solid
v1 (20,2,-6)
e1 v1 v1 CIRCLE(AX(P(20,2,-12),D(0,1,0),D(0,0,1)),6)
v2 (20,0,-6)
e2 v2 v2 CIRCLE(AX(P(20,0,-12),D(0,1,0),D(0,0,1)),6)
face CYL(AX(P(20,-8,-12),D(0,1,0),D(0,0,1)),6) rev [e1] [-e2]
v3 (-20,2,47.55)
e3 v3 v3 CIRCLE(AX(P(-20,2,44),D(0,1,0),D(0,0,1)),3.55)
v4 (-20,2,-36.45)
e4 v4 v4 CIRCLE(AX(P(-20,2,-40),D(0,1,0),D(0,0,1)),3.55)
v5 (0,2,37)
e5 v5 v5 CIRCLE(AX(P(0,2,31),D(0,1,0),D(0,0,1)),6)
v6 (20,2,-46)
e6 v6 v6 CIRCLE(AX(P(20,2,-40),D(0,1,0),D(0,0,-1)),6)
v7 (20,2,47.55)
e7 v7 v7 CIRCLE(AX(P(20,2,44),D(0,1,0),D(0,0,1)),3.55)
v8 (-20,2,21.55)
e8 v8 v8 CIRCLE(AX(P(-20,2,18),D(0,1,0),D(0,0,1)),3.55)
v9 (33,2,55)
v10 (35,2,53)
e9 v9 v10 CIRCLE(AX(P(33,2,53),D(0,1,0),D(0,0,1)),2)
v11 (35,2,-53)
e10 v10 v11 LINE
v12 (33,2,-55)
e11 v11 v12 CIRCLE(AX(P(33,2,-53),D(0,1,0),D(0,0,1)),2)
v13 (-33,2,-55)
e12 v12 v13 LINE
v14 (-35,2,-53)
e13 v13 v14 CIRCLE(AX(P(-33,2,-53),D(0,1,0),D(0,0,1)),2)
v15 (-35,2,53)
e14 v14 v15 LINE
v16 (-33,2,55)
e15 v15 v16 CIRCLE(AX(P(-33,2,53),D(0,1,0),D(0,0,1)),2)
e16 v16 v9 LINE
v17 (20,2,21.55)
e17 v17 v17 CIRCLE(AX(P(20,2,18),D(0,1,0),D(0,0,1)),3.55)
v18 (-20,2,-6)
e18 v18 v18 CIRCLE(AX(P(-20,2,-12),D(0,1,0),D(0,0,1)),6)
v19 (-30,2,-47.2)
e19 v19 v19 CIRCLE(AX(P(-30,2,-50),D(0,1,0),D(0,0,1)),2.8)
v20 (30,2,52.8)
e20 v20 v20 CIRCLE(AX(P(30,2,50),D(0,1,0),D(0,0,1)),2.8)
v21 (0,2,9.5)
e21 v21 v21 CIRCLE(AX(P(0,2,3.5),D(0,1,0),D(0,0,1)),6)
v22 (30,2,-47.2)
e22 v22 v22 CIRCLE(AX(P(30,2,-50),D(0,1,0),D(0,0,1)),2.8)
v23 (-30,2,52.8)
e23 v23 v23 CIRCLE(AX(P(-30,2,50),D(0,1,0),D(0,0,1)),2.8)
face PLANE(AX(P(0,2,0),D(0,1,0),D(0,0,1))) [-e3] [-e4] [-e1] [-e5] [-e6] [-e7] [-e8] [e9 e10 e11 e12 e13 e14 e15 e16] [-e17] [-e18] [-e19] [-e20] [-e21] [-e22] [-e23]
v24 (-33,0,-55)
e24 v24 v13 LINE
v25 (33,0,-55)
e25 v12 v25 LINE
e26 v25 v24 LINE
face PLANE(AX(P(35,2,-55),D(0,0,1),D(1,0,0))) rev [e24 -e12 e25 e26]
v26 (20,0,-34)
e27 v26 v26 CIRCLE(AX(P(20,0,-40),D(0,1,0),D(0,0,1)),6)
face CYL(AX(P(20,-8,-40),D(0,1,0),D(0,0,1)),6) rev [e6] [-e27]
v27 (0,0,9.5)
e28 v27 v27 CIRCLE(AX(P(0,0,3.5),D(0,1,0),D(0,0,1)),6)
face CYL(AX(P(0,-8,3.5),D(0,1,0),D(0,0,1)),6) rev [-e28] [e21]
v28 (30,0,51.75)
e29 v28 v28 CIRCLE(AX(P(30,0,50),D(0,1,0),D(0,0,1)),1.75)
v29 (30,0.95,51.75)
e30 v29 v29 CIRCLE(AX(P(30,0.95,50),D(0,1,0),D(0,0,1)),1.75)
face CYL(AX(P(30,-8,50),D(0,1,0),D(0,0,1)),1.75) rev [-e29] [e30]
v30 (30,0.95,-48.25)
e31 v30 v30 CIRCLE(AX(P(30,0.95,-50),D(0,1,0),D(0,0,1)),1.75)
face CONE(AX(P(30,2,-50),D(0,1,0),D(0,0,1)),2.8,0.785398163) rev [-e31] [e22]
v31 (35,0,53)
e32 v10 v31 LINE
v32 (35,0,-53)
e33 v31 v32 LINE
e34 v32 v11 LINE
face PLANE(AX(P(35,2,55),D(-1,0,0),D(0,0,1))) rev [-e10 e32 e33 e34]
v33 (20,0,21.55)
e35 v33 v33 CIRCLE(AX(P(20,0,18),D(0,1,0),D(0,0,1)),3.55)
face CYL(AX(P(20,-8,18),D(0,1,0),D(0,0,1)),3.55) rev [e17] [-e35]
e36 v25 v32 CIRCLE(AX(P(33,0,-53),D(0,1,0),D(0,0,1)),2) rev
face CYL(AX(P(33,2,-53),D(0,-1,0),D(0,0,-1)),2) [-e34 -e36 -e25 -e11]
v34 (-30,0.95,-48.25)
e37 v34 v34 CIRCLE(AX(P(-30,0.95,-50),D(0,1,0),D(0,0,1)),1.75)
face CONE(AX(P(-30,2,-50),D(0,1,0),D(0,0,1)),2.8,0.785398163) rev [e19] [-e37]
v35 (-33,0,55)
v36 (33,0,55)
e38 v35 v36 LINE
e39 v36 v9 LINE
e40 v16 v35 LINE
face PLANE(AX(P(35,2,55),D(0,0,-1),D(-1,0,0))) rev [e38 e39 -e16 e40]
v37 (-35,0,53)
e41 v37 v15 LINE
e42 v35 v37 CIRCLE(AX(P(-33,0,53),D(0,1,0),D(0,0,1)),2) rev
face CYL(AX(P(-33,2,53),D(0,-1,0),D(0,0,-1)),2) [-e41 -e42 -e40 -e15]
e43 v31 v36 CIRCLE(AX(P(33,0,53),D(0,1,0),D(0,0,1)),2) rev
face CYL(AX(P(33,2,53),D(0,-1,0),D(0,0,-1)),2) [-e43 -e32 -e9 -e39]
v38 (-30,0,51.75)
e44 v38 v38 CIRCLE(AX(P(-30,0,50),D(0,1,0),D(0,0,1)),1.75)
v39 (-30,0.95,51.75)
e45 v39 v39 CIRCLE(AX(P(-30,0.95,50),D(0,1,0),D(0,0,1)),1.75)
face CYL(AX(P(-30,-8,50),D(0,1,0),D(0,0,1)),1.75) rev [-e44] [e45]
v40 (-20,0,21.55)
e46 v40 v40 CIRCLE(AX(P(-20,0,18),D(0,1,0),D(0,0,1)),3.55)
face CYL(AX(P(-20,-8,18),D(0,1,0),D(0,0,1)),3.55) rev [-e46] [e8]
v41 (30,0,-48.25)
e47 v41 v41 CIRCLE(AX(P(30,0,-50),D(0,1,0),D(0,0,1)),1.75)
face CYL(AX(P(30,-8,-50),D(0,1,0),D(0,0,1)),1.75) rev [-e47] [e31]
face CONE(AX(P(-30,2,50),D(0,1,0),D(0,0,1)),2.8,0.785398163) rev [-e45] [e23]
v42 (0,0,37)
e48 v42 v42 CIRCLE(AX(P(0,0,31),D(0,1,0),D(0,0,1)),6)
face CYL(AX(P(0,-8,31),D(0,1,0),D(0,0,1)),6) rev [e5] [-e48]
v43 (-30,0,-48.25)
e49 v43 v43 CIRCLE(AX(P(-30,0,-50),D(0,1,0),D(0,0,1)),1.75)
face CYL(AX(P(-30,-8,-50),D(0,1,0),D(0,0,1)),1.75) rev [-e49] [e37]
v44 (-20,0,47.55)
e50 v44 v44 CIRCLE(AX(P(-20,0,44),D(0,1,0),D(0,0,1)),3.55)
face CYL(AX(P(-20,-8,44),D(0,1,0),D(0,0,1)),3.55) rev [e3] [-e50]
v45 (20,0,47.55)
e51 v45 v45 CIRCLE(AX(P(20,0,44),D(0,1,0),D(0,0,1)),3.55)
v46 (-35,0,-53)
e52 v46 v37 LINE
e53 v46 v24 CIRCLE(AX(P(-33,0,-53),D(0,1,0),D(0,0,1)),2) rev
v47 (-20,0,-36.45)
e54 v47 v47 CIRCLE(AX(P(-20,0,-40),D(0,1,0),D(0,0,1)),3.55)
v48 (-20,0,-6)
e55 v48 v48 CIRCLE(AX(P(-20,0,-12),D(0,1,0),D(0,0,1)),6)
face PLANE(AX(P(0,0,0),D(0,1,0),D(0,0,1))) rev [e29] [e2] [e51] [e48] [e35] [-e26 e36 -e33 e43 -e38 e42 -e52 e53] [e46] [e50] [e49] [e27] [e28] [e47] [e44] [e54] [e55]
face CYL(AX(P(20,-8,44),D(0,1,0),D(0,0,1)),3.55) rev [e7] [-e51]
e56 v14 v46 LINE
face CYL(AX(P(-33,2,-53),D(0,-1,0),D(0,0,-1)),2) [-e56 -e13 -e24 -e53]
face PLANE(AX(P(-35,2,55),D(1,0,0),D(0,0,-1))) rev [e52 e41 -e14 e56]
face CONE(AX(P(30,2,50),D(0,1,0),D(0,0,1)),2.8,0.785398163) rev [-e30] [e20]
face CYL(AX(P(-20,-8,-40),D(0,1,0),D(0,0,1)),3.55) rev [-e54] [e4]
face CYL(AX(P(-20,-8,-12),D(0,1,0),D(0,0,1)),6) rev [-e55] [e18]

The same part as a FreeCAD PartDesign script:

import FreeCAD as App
import Part
import Sketcher


def edges_at(feature, points):
    """Names of the edges that pass closest to the given points."""
    edges = feature.Shape.Edges
    near = lambda p: min(range(len(edges)), key=lambda i: edges[i].distToShape(Part.Vertex(*p))[0])
    return sorted({f"Edge{near(p) + 1}" for p in points})

doc = App.newDocument("Part")
body = doc.addObject("PartDesign::Body", "Body")

# Sketch on XZ plane
sketch1 = body.newObject("Sketcher::SketchObject", "Sketch")
sketch1.AttachmentSupport = (doc.getObject("XZ_Plane"), [""])
sketch1.MapMode = "FlatFace"
sketch1.addGeometry(Part.LineSegment(App.Vector(-35, -55, 0), App.Vector(-35, 55, 0)), False)
sketch1.addGeometry(Part.LineSegment(App.Vector(-35, 55, 0), App.Vector(35, 55, 0)), False)
sketch1.addGeometry(Part.LineSegment(App.Vector(35, 55, 0), App.Vector(35, -55, 0)), False)
sketch1.addGeometry(Part.LineSegment(App.Vector(35, -55, 0), App.Vector(-35, -55, 0)), False)
sketch1.addConstraint(Sketcher.Constraint("Coincident", 0, 2, 1, 1))
sketch1.addConstraint(Sketcher.Constraint("Coincident", 1, 2, 2, 1))
sketch1.addConstraint(Sketcher.Constraint("Coincident", 2, 2, 3, 1))
sketch1.addConstraint(Sketcher.Constraint("Coincident", 3, 2, 0, 1))
sketch1.addConstraint(Sketcher.Constraint("Vertical", 0))
sketch1.addConstraint(Sketcher.Constraint("Horizontal", 1))
sketch1.addConstraint(Sketcher.Constraint("Vertical", 2))
sketch1.addConstraint(Sketcher.Constraint("Horizontal", 3))
sketch1.addConstraint(Sketcher.Constraint("Symmetric", 0, 2, 2, 2, -1, 1))
sketch1.addConstraint(Sketcher.Constraint("DistanceX", 1, 1, 1, 2, 70.0))
sketch1.addConstraint(Sketcher.Constraint("DistanceY", 0, 1, 0, 2, 110.0))
pad1 = body.newObject("PartDesign::Pad", "Pad")
pad1.Profile = sketch1
pad1.Length = 2
pad1.Reversed = True

# Sketch on XZ plane
sketch2 = body.newObject("Sketcher::SketchObject", "Sketch001")
sketch2.AttachmentSupport = (doc.getObject("XZ_Plane"), [""])
sketch2.MapMode = "FlatFace"
sketch2.AttachmentOffset = App.Placement(App.Vector(0, 0, -2), App.Rotation())
sketch2.addGeometry(Part.Circle(App.Vector(-20, -12, 0), App.Vector(0, 0, 1), 6), False)
sketch2.addGeometry(Part.Circle(App.Vector(20, -12, 0), App.Vector(0, 0, 1), 6), False)
sketch2.addGeometry(Part.Circle(App.Vector(-20, 18, 0), App.Vector(0, 0, 1), 3.5), False)
sketch2.addGeometry(Part.Circle(App.Vector(-20, 44, 0), App.Vector(0, 0, 1), 3.5), False)
sketch2.addGeometry(Part.Circle(App.Vector(-20, -40, 0), App.Vector(0, 0, 1), 3.5), False)
sketch2.addGeometry(Part.Circle(App.Vector(20, 18, 0), App.Vector(0, 0, 1), 3.5), False)
sketch2.addGeometry(Part.Circle(App.Vector(20, 44, 0), App.Vector(0, 0, 1), 3.5), False)
sketch2.addGeometry(Part.Circle(App.Vector(20, -40, 0), App.Vector(0, 0, 1), 6), False)
sketch2.addGeometry(Part.Circle(App.Vector(0, 31, 0), App.Vector(0, 0, 1), 6), False)
sketch2.addGeometry(Part.Circle(App.Vector(0, 3.5, 0), App.Vector(0, 0, 1), 6), False)
sketch2.addConstraint(Sketcher.Constraint("Equal", 0, 1))
sketch2.addConstraint(Sketcher.Constraint("Equal", 2, 3))
sketch2.addConstraint(Sketcher.Constraint("Equal", 3, 4))
sketch2.addConstraint(Sketcher.Constraint("Equal", 4, 5))
sketch2.addConstraint(Sketcher.Constraint("Equal", 5, 6))
sketch2.addConstraint(Sketcher.Constraint("Equal", 1, 7))
sketch2.addConstraint(Sketcher.Constraint("Equal", 7, 8))
sketch2.addConstraint(Sketcher.Constraint("Equal", 8, 9))
sketch2.addConstraint(Sketcher.Constraint("Symmetric", 0, 3, 1, 3, -2))
sketch2.addConstraint(Sketcher.Constraint("Symmetric", 2, 3, 5, 3, -2))
sketch2.addConstraint(Sketcher.Constraint("Symmetric", 3, 3, 6, 3, -2))
sketch2.addConstraint(Sketcher.Constraint("Symmetric", 4, 3, 7, 3, -2))
sketch2.addConstraint(Sketcher.Constraint("PointOnObject", 8, 3, -2))
sketch2.addConstraint(Sketcher.Constraint("PointOnObject", 9, 3, -2))
sketch2.addConstraint(Sketcher.Constraint("Vertical", 0, 3, 2, 3))
sketch2.addConstraint(Sketcher.Constraint("Vertical", 2, 3, 3, 3))
sketch2.addConstraint(Sketcher.Constraint("Vertical", 3, 3, 4, 3))
sketch2.addConstraint(Sketcher.Constraint("Diameter", 0, 12.0))
sketch2.addConstraint(Sketcher.Constraint("Diameter", 2, 7.1))
sketch2.addConstraint(Sketcher.Constraint("DistanceX", 0, 3, -1, 1, 20.0))
sketch2.addConstraint(Sketcher.Constraint("DistanceY", 0, 3, -1, 1, 12.0))
sketch2.addConstraint(Sketcher.Constraint("DistanceY", -1, 1, 2, 3, 18.0))
sketch2.addConstraint(Sketcher.Constraint("DistanceY", -1, 1, 3, 3, 44.0))
sketch2.addConstraint(Sketcher.Constraint("DistanceY", 4, 3, -1, 1, 40.0))
sketch2.addConstraint(Sketcher.Constraint("DistanceY", -1, 1, 8, 3, 31.0))
sketch2.addConstraint(Sketcher.Constraint("DistanceY", -1, 1, 9, 3, 3.5))
pocket1 = body.newObject("PartDesign::Pocket", "Pocket")
pocket1.Profile = sketch2
pocket1.Length = 10
pocket1.Reversed = True

# Sketch on XZ plane
sketch3 = body.newObject("Sketcher::SketchObject", "Sketch002")
sketch3.AttachmentSupport = (doc.getObject("XZ_Plane"), [""])
sketch3.MapMode = "FlatFace"
sketch3.AttachmentOffset = App.Placement(App.Vector(0, 0, -2), App.Rotation())
sketch3.addGeometry(Part.Circle(App.Vector(-30, -50, 0), App.Vector(0, 0, 1), 1.8), False)
sketch3.addGeometry(Part.Circle(App.Vector(30, -50, 0), App.Vector(0, 0, 1), 1.8), False)
sketch3.addGeometry(Part.Circle(App.Vector(-30, 50, 0), App.Vector(0, 0, 1), 1.8), False)
sketch3.addGeometry(Part.Circle(App.Vector(30, 50, 0), App.Vector(0, 0, 1), 1.8), False)
sketch3.addConstraint(Sketcher.Constraint("Equal", 0, 1))
sketch3.addConstraint(Sketcher.Constraint("Equal", 1, 2))
sketch3.addConstraint(Sketcher.Constraint("Equal", 2, 3))
sketch3.addConstraint(Sketcher.Constraint("Symmetric", 1, 3, 2, 3, -1, 1))
sketch3.addConstraint(Sketcher.Constraint("Symmetric", 0, 3, 3, 3, -1, 1))
sketch3.addConstraint(Sketcher.Constraint("Symmetric", 0, 3, 1, 3, -2))
sketch3.addConstraint(Sketcher.Constraint("Diameter", 0, 3.5))
sketch3.addConstraint(Sketcher.Constraint("DistanceX", 0, 3, -1, 1, 30.0))
sketch3.addConstraint(Sketcher.Constraint("DistanceY", 0, 3, -1, 1, 50.0))
pocket2 = body.newObject("PartDesign::Pocket", "Pocket001")
pocket2.Profile = sketch3
pocket2.Length = 10
pocket2.Reversed = True

# Sketch on YZ plane
sketch4 = body.newObject("Sketcher::SketchObject", "Sketch003")
sketch4.AttachmentSupport = (doc.getObject("YZ_Plane"), [""])
sketch4.MapMode = "FlatFace"
sketch4.AttachmentOffset = App.Placement(App.Vector(0, 0, -30), App.Rotation())
sketch4.addGeometry(Part.LineSegment(App.Vector(2, -50, 0), App.Vector(2, -47.2, 0)), False)
sketch4.addGeometry(Part.LineSegment(App.Vector(2, -47.2, 0), App.Vector(-0.8, -50, 0)), False)
sketch4.addGeometry(Part.LineSegment(App.Vector(-0.8, -50, 0), App.Vector(2, -50, 0)), False)
sketch4.addGeometry(Part.LineSegment(App.Vector(2, -50, 0), App.Vector(-0.8, -50, 0)), True)  # axis
sketch4.addConstraint(Sketcher.Constraint("Coincident", 0, 2, 1, 1))
sketch4.addConstraint(Sketcher.Constraint("Coincident", 1, 2, 2, 1))
sketch4.addConstraint(Sketcher.Constraint("Coincident", 2, 2, 0, 1))
sketch4.addConstraint(Sketcher.Constraint("Vertical", 0))
sketch4.addConstraint(Sketcher.Constraint("Horizontal", 2))
sketch4.addConstraint(Sketcher.Constraint("Horizontal", 3))
sketch4.addConstraint(Sketcher.Constraint("Coincident", 3, 1, 2, 2))
sketch4.addConstraint(Sketcher.Constraint("Equal", 2, 3))
sketch4.addConstraint(Sketcher.Constraint("Equal", 3, 0))
sketch4.addConstraint(Sketcher.Constraint("DistanceX", 2, 1, 2, 2, 2.8))
sketch4.addConstraint(Sketcher.Constraint("DistanceX", -1, 1, 0, 2, 2.0))
sketch4.addConstraint(Sketcher.Constraint("DistanceY", 1, 2, -1, 1, 50.0))
groove = body.newObject("PartDesign::Groove", "Groove")
groove.Profile = sketch4
groove.ReferenceAxis = (sketch4, ["Axis0"])
groove.Angle = 360

# Sketch on YZ plane
sketch5 = body.newObject("Sketcher::SketchObject", "Sketch004")
sketch5.AttachmentSupport = (doc.getObject("YZ_Plane"), [""])
sketch5.MapMode = "FlatFace"
sketch5.AttachmentOffset = App.Placement(App.Vector(0, 0, 30), App.Rotation())
sketch5.addGeometry(Part.LineSegment(App.Vector(2, -50, 0), App.Vector(2, -47.2, 0)), False)
sketch5.addGeometry(Part.LineSegment(App.Vector(2, -47.2, 0), App.Vector(-0.8, -50, 0)), False)
sketch5.addGeometry(Part.LineSegment(App.Vector(-0.8, -50, 0), App.Vector(2, -50, 0)), False)
sketch5.addGeometry(Part.LineSegment(App.Vector(2, -50, 0), App.Vector(-0.8, -50, 0)), True)  # axis
sketch5.addConstraint(Sketcher.Constraint("Coincident", 0, 2, 1, 1))
sketch5.addConstraint(Sketcher.Constraint("Coincident", 1, 2, 2, 1))
sketch5.addConstraint(Sketcher.Constraint("Coincident", 2, 2, 0, 1))
sketch5.addConstraint(Sketcher.Constraint("Vertical", 0))
sketch5.addConstraint(Sketcher.Constraint("Horizontal", 2))
sketch5.addConstraint(Sketcher.Constraint("Horizontal", 3))
sketch5.addConstraint(Sketcher.Constraint("Coincident", 3, 1, 2, 2))
sketch5.addConstraint(Sketcher.Constraint("Equal", 2, 3))
sketch5.addConstraint(Sketcher.Constraint("Equal", 3, 0))
sketch5.addConstraint(Sketcher.Constraint("DistanceX", 2, 1, 2, 2, 2.8))
sketch5.addConstraint(Sketcher.Constraint("DistanceX", -1, 1, 0, 2, 2.0))
sketch5.addConstraint(Sketcher.Constraint("DistanceY", 1, 2, -1, 1, 50.0))
groove2 = body.newObject("PartDesign::Groove", "Groove001")
groove2.Profile = sketch5
groove2.ReferenceAxis = (sketch5, ["Axis0"])
groove2.Angle = 360

# Sketch on YZ plane
sketch6 = body.newObject("Sketcher::SketchObject", "Sketch005")
sketch6.AttachmentSupport = (doc.getObject("YZ_Plane"), [""])
sketch6.MapMode = "FlatFace"
sketch6.AttachmentOffset = App.Placement(App.Vector(0, 0, 30), App.Rotation())
sketch6.addGeometry(Part.LineSegment(App.Vector(2, 50, 0), App.Vector(2, 52.8, 0)), False)
sketch6.addGeometry(Part.LineSegment(App.Vector(2, 52.8, 0), App.Vector(-0.8, 50, 0)), False)
sketch6.addGeometry(Part.LineSegment(App.Vector(-0.8, 50, 0), App.Vector(2, 50, 0)), False)
sketch6.addGeometry(Part.LineSegment(App.Vector(2, 50, 0), App.Vector(-0.8, 50, 0)), True)  # axis
sketch6.addConstraint(Sketcher.Constraint("Coincident", 0, 2, 1, 1))
sketch6.addConstraint(Sketcher.Constraint("Coincident", 1, 2, 2, 1))
sketch6.addConstraint(Sketcher.Constraint("Coincident", 2, 2, 0, 1))
sketch6.addConstraint(Sketcher.Constraint("Vertical", 0))
sketch6.addConstraint(Sketcher.Constraint("Horizontal", 2))
sketch6.addConstraint(Sketcher.Constraint("Horizontal", 3))
sketch6.addConstraint(Sketcher.Constraint("Coincident", 3, 1, 2, 2))
sketch6.addConstraint(Sketcher.Constraint("Equal", 2, 3))
sketch6.addConstraint(Sketcher.Constraint("Equal", 3, 0))
sketch6.addConstraint(Sketcher.Constraint("DistanceX", 2, 1, 2, 2, 2.8))
sketch6.addConstraint(Sketcher.Constraint("DistanceX", -1, 1, 0, 2, 2.0))
sketch6.addConstraint(Sketcher.Constraint("DistanceY", -1, 1, 1, 2, 50.0))
groove3 = body.newObject("PartDesign::Groove", "Groove002")
groove3.Profile = sketch6
groove3.ReferenceAxis = (sketch6, ["Axis0"])
groove3.Angle = 360

# Sketch on YZ plane
sketch7 = body.newObject("Sketcher::SketchObject", "Sketch006")
sketch7.AttachmentSupport = (doc.getObject("YZ_Plane"), [""])
sketch7.MapMode = "FlatFace"
sketch7.AttachmentOffset = App.Placement(App.Vector(0, 0, -30), App.Rotation())
sketch7.addGeometry(Part.LineSegment(App.Vector(2, 50, 0), App.Vector(2, 52.8, 0)), False)
sketch7.addGeometry(Part.LineSegment(App.Vector(2, 52.8, 0), App.Vector(-0.8, 50, 0)), False)
sketch7.addGeometry(Part.LineSegment(App.Vector(-0.8, 50, 0), App.Vector(2, 50, 0)), False)
sketch7.addGeometry(Part.LineSegment(App.Vector(2, 50, 0), App.Vector(-0.8, 50, 0)), True)  # axis
sketch7.addConstraint(Sketcher.Constraint("Coincident", 0, 2, 1, 1))
sketch7.addConstraint(Sketcher.Constraint("Coincident", 1, 2, 2, 1))
sketch7.addConstraint(Sketcher.Constraint("Coincident", 2, 2, 0, 1))
sketch7.addConstraint(Sketcher.Constraint("Vertical", 0))
sketch7.addConstraint(Sketcher.Constraint("Horizontal", 2))
sketch7.addConstraint(Sketcher.Constraint("Horizontal", 3))
sketch7.addConstraint(Sketcher.Constraint("Coincident", 3, 1, 2, 2))
sketch7.addConstraint(Sketcher.Constraint("Equal", 2, 3))
sketch7.addConstraint(Sketcher.Constraint("Equal", 3, 0))
sketch7.addConstraint(Sketcher.Constraint("DistanceX", 2, 1, 2, 2, 2.8))
sketch7.addConstraint(Sketcher.Constraint("DistanceX", -1, 1, 0, 2, 2.0))
sketch7.addConstraint(Sketcher.Constraint("DistanceY", -1, 1, 1, 2, 50.0))
groove4 = body.newObject("PartDesign::Groove", "Groove003")
groove4.Profile = sketch7
groove4.ReferenceAxis = (sketch7, ["Axis0"])
groove4.Angle = 360
doc.recompute()

fillet = body.newObject("PartDesign::Fillet", "Fillet")
fillet.Base = (groove4, edges_at(groove4, [(-35, 1, -55)]))
fillet.Radius = 2
doc.recompute()

fillet2 = body.newObject("PartDesign::Fillet", "Fillet001")
fillet2.Base = (fillet, edges_at(fillet, [(35, 1, -55)]))
fillet2.Radius = 2
doc.recompute()

fillet3 = body.newObject("PartDesign::Fillet", "Fillet002")
fillet3.Base = (fillet2, edges_at(fillet2, [(35, 1, 55)]))
fillet3.Radius = 2
doc.recompute()

fillet4 = body.newObject("PartDesign::Fillet", "Fillet003")
fillet4.Base = (fillet3, edges_at(fillet3, [(-35, 1, 55)]))
fillet4.Radius = 2

doc.recompute()
